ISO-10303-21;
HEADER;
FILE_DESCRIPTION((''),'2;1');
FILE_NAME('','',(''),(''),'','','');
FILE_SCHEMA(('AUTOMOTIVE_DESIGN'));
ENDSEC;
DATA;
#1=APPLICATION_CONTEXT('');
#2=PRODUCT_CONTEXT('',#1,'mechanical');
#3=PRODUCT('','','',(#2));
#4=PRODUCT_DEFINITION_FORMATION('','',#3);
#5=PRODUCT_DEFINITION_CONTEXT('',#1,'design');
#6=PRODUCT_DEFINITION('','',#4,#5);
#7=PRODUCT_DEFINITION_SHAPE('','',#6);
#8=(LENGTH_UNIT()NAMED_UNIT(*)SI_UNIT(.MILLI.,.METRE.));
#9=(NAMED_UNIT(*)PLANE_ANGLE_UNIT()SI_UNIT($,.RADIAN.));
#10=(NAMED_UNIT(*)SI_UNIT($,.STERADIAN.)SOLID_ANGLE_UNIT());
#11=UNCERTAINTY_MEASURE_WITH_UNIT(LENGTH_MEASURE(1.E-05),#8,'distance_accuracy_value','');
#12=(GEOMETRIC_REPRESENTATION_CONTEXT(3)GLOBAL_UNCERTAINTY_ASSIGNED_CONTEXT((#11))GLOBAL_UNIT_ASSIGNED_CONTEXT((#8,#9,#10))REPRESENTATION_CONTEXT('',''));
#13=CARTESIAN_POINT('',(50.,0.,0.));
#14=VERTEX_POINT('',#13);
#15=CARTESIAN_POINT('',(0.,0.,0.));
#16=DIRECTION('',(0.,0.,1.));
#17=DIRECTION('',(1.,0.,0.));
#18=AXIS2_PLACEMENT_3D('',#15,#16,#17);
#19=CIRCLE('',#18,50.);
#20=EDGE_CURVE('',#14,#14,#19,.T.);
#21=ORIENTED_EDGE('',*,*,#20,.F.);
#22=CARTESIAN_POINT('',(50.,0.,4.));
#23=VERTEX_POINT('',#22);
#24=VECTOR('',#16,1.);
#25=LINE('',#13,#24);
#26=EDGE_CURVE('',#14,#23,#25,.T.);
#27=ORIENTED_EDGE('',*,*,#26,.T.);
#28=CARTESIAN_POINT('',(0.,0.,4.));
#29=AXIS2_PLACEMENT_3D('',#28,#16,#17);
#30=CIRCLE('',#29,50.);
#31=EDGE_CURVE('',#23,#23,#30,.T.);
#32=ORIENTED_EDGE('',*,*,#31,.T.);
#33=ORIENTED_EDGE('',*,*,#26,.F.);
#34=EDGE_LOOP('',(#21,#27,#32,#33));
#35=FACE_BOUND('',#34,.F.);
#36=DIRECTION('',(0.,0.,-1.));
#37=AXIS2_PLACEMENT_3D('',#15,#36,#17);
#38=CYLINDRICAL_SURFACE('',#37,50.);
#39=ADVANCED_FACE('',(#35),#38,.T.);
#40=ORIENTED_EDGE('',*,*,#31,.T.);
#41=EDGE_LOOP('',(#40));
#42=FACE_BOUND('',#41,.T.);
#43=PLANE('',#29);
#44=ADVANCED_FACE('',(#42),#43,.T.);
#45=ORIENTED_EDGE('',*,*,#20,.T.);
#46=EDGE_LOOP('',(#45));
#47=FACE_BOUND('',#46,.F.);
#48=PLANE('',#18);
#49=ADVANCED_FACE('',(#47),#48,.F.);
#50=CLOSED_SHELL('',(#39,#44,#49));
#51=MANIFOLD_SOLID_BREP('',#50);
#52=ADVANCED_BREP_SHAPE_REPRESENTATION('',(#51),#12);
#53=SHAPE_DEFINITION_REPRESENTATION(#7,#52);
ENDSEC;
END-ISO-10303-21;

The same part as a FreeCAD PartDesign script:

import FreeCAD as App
import Part
import Sketcher

doc = App.newDocument("Part")
params = doc.addObject("Spreadsheet::Sheet", "Params")
for row, (alias, value) in enumerate([
    ("sketch1_diameter", "100 mm"),
    ("pad1_length", "4 mm"),
], start=1):
    params.set(f"A{row}", alias)
    params.set(f"B{row}", "=" + value)
    params.setAlias(f"B{row}", alias)

body = doc.addObject("PartDesign::Body", "Body")

# Sketch on XY plane
sketch1 = body.newObject("Sketcher::SketchObject", "Sketch")
sketch1.AttachmentSupport = (doc.getObject("XY_Plane"), [""])
sketch1.MapMode = "FlatFace"
sketch1.addGeometry(Part.Circle(App.Vector(0, 0, 0), App.Vector(0, 0, 1), 50), False)
sketch1.addConstraint(Sketcher.Constraint("Coincident", 0, 3, -1, 1))
sketch1.addConstraint(Sketcher.Constraint("Diameter", 0, 100.0))
sketch1.setExpression("Constraints[1]", "Params.sketch1_diameter")
pad1 = body.newObject("PartDesign::Pad", "Pad")
pad1.Profile = sketch1
pad1.setExpression("Length", "Params.pad1_length")

doc.recompute()
